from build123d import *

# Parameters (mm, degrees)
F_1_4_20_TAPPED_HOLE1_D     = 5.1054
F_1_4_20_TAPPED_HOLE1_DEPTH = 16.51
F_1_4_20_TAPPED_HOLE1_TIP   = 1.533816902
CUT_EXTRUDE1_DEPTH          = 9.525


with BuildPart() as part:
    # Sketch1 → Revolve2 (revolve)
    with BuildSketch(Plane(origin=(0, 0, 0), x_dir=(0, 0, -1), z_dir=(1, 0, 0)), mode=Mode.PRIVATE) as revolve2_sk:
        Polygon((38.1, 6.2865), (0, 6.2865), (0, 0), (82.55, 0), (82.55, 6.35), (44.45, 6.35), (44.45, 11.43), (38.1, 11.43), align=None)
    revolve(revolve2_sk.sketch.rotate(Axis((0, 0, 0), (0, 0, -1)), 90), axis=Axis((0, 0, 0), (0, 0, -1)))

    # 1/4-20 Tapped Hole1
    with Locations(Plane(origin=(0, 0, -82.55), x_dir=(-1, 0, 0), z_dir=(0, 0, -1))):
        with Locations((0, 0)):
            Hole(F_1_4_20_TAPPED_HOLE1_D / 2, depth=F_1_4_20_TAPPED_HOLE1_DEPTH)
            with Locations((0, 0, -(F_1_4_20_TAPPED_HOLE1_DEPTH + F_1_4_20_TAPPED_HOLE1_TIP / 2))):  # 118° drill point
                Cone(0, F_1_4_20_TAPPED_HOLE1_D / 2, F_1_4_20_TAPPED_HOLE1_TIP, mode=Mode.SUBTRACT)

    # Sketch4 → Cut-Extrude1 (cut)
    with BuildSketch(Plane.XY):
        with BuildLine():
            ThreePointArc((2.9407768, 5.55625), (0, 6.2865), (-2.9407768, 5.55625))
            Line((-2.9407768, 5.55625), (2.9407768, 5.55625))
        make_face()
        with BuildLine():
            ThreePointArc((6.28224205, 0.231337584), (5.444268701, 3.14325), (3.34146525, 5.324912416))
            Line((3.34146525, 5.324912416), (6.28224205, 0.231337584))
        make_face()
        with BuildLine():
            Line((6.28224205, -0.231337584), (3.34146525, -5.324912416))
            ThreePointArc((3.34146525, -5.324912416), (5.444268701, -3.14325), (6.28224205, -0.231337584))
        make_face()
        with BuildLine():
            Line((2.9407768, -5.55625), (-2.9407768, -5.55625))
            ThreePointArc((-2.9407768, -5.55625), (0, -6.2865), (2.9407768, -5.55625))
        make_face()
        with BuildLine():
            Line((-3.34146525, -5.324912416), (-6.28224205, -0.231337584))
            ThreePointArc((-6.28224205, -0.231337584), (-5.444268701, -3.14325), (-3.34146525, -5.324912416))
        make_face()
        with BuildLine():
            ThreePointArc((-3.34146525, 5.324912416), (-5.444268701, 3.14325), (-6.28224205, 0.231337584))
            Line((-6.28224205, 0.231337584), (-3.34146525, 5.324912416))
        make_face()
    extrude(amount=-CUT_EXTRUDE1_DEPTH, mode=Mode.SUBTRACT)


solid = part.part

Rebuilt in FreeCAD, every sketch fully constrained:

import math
import FreeCAD as App
import Part
import Sketcher
Q = App.Units.Quantity


def add_polygon(sketch, points):
    """Adds a closed chain of lines whose ends are joined by coincident constraints."""
    first, n = sketch.GeometryCount, len(points)
    for a, b in zip(points, points[1:] + points[:1]):
        sketch.addGeometry(Part.LineSegment(App.Vector(*a, 0), App.Vector(*b, 0)), False)
    for i in range(n):
        sketch.addConstraint(Sketcher.Constraint("Coincident", first + i, 2, first + (i + 1) % n, 1))

doc = App.newDocument("Part")
body = doc.addObject("PartDesign::Body", "Body")

# Sketch on YZ plane
sketch1 = body.newObject("Sketcher::SketchObject", "Sketch")
sketch1.AttachmentSupport = (doc.getObject("YZ_Plane"), [""])
sketch1.MapMode = "FlatFace"
add_polygon(sketch1, [(6.2865, -38.1), (6.2865, 0), (0, 0), (0, -82.55), (6.35, -82.55), (6.35, -44.45), (11.43, -44.45), (11.43, -38.1)])  # lines 0-7
sketch1.addConstraint([
    Sketcher.Constraint("Vertical", 0),
    Sketcher.Constraint("Horizontal", 1),
    Sketcher.Constraint("Vertical", 2),
    Sketcher.Constraint("Horizontal", 3),
    Sketcher.Constraint("Vertical", 4),
    Sketcher.Constraint("Horizontal", 5),
    Sketcher.Constraint("Vertical", 6),
    Sketcher.Constraint("Horizontal", 7),
    Sketcher.Constraint("Coincident", 1, 2, -1, 1),
    Sketcher.Constraint("Equal", 0, 4),
    Sketcher.Constraint("Equal", 3, 6),
    Sketcher.Constraint("DistanceX", 5, 1, 5, 2, Q("0.2 in")),
    Sketcher.Constraint("DistanceY", 0, 1, 0, 2, Q("1.5 in")),
    Sketcher.Constraint("DistanceX", 3, 1, 3, 2, Q("0.25 in")),
    Sketcher.Constraint("DistanceX", 1, 2, 1, 1, Q("0.2475 in")),
])
revolution = body.newObject("PartDesign::Revolution", "Revolution")
revolution.Profile = sketch1
revolution.ReferenceAxis = (sketch1, ["V_Axis"])
revolution.Angle = 360

# Sketch on XY plane
sketch2 = body.newObject("Sketcher::SketchObject", "Sketch001")
sketch2.AttachmentSupport = (doc.getObject("XY_Plane"), [""])
sketch2.MapMode = "FlatFace"
sketch2.AttachmentOffset = App.Placement(App.Vector(0, 0, -3.25 * 25.4), App.Rotation())
sketch2.addGeometry(Part.Circle(App.Vector(0, 0, 0), App.Vector(0, 0, 1), 2.5527), False)
sketch2.addConstraint([
    Sketcher.Constraint("Coincident", 0, 3, -1, 1),
    Sketcher.Constraint("Diameter", 0, Q("0.201 in")),
])
doc.recompute()
hole = body.newObject("PartDesign::Hole", "Hole")
hole.Profile = sketch2
hole.ThreadType = "None"
hole.Diameter = Q("0.201 in")
hole.DepthType = "Dimension"
hole.Depth = Q("0.65 in")
hole.DrillPoint = "Angled"
hole.DrillPointAngle = 118
hole.Reversed = True

# Sketch on XY plane
sketch3 = body.newObject("Sketcher::SketchObject", "Sketch002")
sketch3.AttachmentSupport = (doc.getObject("XY_Plane"), [""])
sketch3.MapMode = "FlatFace"
sketch3.addGeometry([
    Part.ArcOfCircle(Part.Circle(App.Vector(0, 0, 0), App.Vector(0, 0, 1), 6.2865), math.radians(62.10891), math.radians(117.89109)),  # 0
    Part.LineSegment(App.Vector(-2.940777, 5.55625, 0), App.Vector(2.940777, 5.55625, 0)),  # 1
    Part.ArcOfCircle(Part.Circle(App.Vector(0, 0, 0), App.Vector(0, 0, 1), 6.2865), math.radians(2.10891), math.radians(57.89109)),  # 2
    Part.LineSegment(App.Vector(3.341465, 5.324912, 0), App.Vector(6.282242, 0.231338, 0)),  # 3
    Part.LineSegment(App.Vector(6.282242, -0.231338, 0), App.Vector(3.341465, -5.324912, 0)),  # 4
    Part.ArcOfCircle(Part.Circle(App.Vector(0, 0, 0), App.Vector(0, 0, 1), 6.2865), math.radians(-57.89109), math.radians(-2.10891)),  # 5
    Part.LineSegment(App.Vector(2.940777, -5.55625, 0), App.Vector(-2.940777, -5.55625, 0)),  # 6
    Part.ArcOfCircle(Part.Circle(App.Vector(0, 0, 0), App.Vector(0, 0, 1), 6.2865), math.radians(-117.89109), math.radians(-62.10891)),  # 7
    Part.LineSegment(App.Vector(-3.341465, -5.324912, 0), App.Vector(-6.282242, -0.231338, 0)),  # 8
    Part.ArcOfCircle(Part.Circle(App.Vector(0, 0, 0), App.Vector(0, 0, 1), 6.2865), math.radians(-177.89109), math.radians(-122.10891)),  # 9
    Part.ArcOfCircle(Part.Circle(App.Vector(0, 0, 0), App.Vector(0, 0, 1), 6.2865), math.radians(122.10891), math.radians(177.89109)),  # 10
    Part.LineSegment(App.Vector(-6.282242, 0.231338, 0), App.Vector(-3.341465, 5.324912, 0)),  # 11
], False)
sketch3.addConstraint([
    Sketcher.Constraint("Coincident", 0, 1, 1, 2),
    Sketcher.Constraint("Coincident", 1, 1, 0, 2),
    Sketcher.Constraint("Coincident", 2, 1, 3, 2),
    Sketcher.Constraint("Coincident", 3, 1, 2, 2),
    Sketcher.Constraint("Coincident", 4, 1, 5, 2),
    Sketcher.Constraint("Coincident", 5, 1, 4, 2),
    Sketcher.Constraint("Coincident", 6, 1, 7, 2),
    Sketcher.Constraint("Coincident", 7, 1, 6, 2),
    Sketcher.Constraint("Coincident", 8, 1, 9, 2),
    Sketcher.Constraint("Coincident", 9, 1, 8, 2),
    Sketcher.Constraint("Coincident", 10, 1, 11, 2),
    Sketcher.Constraint("Coincident", 11, 1, 10, 2),
    Sketcher.Constraint("Horizontal", 1),
    Sketcher.Constraint("Horizontal", 6),
    Sketcher.Constraint("Coincident", 0, 3, -1, 1),
    Sketcher.Constraint("Coincident", 2, 3, -1, 1),
    Sketcher.Constraint("Coincident", 5, 3, -1, 1),
    Sketcher.Constraint("Coincident", 7, 3, -1, 1),
    Sketcher.Constraint("Coincident", 9, 3, -1, 1),
    Sketcher.Constraint("Coincident", 10, 3, -1, 1),
    Sketcher.Constraint("Equal", 0, 2),
    Sketcher.Constraint("Equal", 2, 5),
    Sketcher.Constraint("Equal", 5, 7),
    Sketcher.Constraint("Equal", 7, 9),
    Sketcher.Constraint("Equal", 9, 10),
    Sketcher.Constraint("Parallel", 3, 8),
    Sketcher.Constraint("Parallel", 4, 11),
    Sketcher.Constraint("Horizontal", 5, 1, 8, 1),
    Sketcher.Constraint("Horizontal", 4, 1, 9, 1),
    Sketcher.Constraint("Horizontal", 3, 1, 10, 1),
    Sketcher.Constraint("Vertical", 2, 1, 4, 1),
    Sketcher.Constraint("Vertical", 0, 1, 6, 1),
    Sketcher.Constraint("Angle", 3, Q("-60 deg")),
    Sketcher.Constraint("Radius", 0, Q("0.2475 in")),
    Sketcher.Constraint("DistanceY", -1, 1, 0, 1, Q("0.21875 in")),
    Sketcher.Constraint("DistanceY", 4, 1, 3, 1, Q("0.21875 in")),
])
pocket1 = body.newObject("PartDesign::Pocket", "Pocket")
pocket1.Profile = sketch3
pocket1.Length = Q("0.375 in")

doc.recompute()
